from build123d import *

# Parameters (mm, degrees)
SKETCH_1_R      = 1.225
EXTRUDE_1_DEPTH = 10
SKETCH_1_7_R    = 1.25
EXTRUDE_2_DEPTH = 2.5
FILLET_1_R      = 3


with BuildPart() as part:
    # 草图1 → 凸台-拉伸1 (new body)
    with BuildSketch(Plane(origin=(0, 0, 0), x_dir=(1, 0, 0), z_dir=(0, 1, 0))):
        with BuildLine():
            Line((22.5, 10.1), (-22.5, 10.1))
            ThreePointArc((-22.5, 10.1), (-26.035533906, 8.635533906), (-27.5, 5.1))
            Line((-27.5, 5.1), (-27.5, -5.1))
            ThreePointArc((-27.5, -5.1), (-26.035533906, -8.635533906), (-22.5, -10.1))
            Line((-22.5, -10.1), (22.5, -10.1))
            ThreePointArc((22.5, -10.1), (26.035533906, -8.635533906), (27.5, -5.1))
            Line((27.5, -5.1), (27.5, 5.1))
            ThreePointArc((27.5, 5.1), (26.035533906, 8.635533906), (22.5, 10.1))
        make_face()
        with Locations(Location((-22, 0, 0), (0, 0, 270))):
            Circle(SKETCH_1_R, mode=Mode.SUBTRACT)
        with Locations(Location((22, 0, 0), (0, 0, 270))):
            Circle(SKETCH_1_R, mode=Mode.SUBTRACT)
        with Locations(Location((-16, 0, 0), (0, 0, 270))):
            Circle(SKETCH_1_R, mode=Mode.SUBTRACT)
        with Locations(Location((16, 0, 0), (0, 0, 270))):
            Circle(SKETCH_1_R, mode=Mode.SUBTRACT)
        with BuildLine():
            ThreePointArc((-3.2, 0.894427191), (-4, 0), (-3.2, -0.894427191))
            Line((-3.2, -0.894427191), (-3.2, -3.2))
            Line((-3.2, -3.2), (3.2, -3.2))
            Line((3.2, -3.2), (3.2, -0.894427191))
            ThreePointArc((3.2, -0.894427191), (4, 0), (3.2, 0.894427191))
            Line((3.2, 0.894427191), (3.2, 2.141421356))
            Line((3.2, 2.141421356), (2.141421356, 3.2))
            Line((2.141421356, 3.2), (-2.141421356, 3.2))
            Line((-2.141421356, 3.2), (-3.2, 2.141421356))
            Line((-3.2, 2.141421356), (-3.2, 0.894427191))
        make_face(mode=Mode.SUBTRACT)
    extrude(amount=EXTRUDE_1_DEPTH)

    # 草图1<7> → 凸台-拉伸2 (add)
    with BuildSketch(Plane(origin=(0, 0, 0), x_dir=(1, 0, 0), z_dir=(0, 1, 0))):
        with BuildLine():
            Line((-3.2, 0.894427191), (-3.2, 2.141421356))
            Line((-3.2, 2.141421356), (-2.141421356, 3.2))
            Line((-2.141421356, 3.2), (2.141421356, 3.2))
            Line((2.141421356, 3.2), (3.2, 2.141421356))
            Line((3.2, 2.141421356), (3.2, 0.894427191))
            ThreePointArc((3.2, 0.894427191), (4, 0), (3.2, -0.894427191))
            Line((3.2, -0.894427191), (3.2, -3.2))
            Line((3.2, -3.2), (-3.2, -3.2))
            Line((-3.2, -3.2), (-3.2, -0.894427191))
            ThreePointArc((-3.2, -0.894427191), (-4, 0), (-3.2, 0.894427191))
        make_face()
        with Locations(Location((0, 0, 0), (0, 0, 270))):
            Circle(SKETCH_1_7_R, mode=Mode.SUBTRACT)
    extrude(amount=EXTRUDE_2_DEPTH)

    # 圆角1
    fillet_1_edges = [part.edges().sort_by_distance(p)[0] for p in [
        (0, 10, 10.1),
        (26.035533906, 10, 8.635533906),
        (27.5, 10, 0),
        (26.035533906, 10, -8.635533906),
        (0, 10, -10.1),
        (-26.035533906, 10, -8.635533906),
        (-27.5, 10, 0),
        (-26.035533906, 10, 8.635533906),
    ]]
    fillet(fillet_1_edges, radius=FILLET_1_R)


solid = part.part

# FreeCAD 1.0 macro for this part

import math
import FreeCAD as App
import Part
import Sketcher
from FreeCAD import Vector
Q = App.Units.Quantity


def edges_at(feature, points):
    """Names of the edges that pass closest to the given points."""
    edges = feature.Shape.Edges
    near = lambda p: min(range(len(edges)), key=lambda i: edges[i].distToShape(Part.Vertex(*p))[0])
    return sorted({f"Edge{near(p) + 1}" for p in points})

doc = App.newDocument("Part")
body = doc.addObject("PartDesign::Body", "Body")

sketch1 = doc.addObject("Sketcher::SketchObject", "Sketch")
body.addObject(sketch1)
sketch1.AttachmentSupport = (doc.XZ_Plane, [""])
sketch1.MapMode = "FlatFace"
sketch1.addGeometry(Part.LineSegment(Vector(22.5, -10.1, 0), Vector(-22.5, -10.1, 0)), False)
sketch1.addGeometry(Part.ArcOfCircle(Part.Circle(Vector(-22.5, -5.1, 0), Vector(0, 0, 1), 5), math.radians(180), math.radians(270)), False)
sketch1.addGeometry(Part.LineSegment(Vector(-27.5, -5.1, 0), Vector(-27.5, 5.1, 0)), False)
sketch1.addGeometry(Part.ArcOfCircle(Part.Circle(Vector(-22.5, 5.1, 0), Vector(0, 0, 1), 5), math.radians(90), math.radians(180)), False)
sketch1.addGeometry(Part.LineSegment(Vector(-22.5, 10.1, 0), Vector(22.5, 10.1, 0)), False)
sketch1.addGeometry(Part.ArcOfCircle(Part.Circle(Vector(22.5, 5.1, 0), Vector(0, 0, 1), 5), math.radians(0), math.radians(90)), False)
sketch1.addGeometry(Part.LineSegment(Vector(27.5, 5.1, 0), Vector(27.5, -5.1, 0)), False)
sketch1.addGeometry(Part.ArcOfCircle(Part.Circle(Vector(22.5, -5.1, 0), Vector(0, 0, 1), 5), math.radians(-90), math.radians(0)), False)
sketch1.addGeometry(Part.Circle(Vector(-22, 0, 0), Vector(0, 0, 1), 1.225), False)
sketch1.addGeometry(Part.Circle(Vector(-16, 0, 0), Vector(0, 0, 1), 1.225), False)
sketch1.addGeometry(Part.ArcOfCircle(Part.Circle(Vector(-3.1, 0, 0), Vector(0, 0, 1), 0.9), math.radians(96.37937), math.radians(263.62063)), False)
sketch1.addGeometry(Part.LineSegment(Vector(-3.2, -0.894427, 0), Vector(-3.2, -2.141421, 0)), False)
sketch1.addGeometry(Part.LineSegment(Vector(-3.2, -2.141421, 0), Vector(-2.141421, -3.2, 0)), False)
sketch1.addGeometry(Part.LineSegment(Vector(-2.141421, -3.2, 0), Vector(2.141421, -3.2, 0)), False)
sketch1.addGeometry(Part.LineSegment(Vector(2.141421, -3.2, 0), Vector(3.2, -2.141421, 0)), False)
sketch1.addGeometry(Part.LineSegment(Vector(3.2, -2.141421, 0), Vector(3.2, -0.894427, 0)), False)
sketch1.addGeometry(Part.ArcOfCircle(Part.Circle(Vector(3.1, 0, 0), Vector(0, 0, 1), 0.9), math.radians(-83.62063), math.radians(83.62063)), False)
sketch1.addGeometry(Part.LineSegment(Vector(3.2, 0.894427, 0), Vector(3.2, 3.2, 0)), False)
sketch1.addGeometry(Part.LineSegment(Vector(3.2, 3.2, 0), Vector(-3.2, 3.2, 0)), False)
sketch1.addGeometry(Part.LineSegment(Vector(-3.2, 3.2, 0), Vector(-3.2, 0.894427, 0)), False)
sketch1.addGeometry(Part.Circle(Vector(16, 0, 0), Vector(0, 0, 1), 1.225), False)
sketch1.addGeometry(Part.Circle(Vector(22, 0, 0), Vector(0, 0, 1), 1.225), False)
sketch1.addConstraint(Sketcher.Constraint("Tangent", 0, 2, 1, 2))
sketch1.addConstraint(Sketcher.Constraint("Tangent", 1, 1, 2, 1))
sketch1.addConstraint(Sketcher.Constraint("Tangent", 2, 2, 3, 2))
sketch1.addConstraint(Sketcher.Constraint("Tangent", 3, 1, 4, 1))
sketch1.addConstraint(Sketcher.Constraint("Tangent", 4, 2, 5, 2))
sketch1.addConstraint(Sketcher.Constraint("Tangent", 5, 1, 6, 1))
sketch1.addConstraint(Sketcher.Constraint("Tangent", 6, 2, 7, 2))
sketch1.addConstraint(Sketcher.Constraint("Tangent", 7, 1, 0, 1))
sketch1.addConstraint(Sketcher.Constraint("Coincident", 10, 2, 11, 1))
sketch1.addConstraint(Sketcher.Constraint("Coincident", 11, 2, 12, 1))
sketch1.addConstraint(Sketcher.Constraint("Coincident", 12, 2, 13, 1))
sketch1.addConstraint(Sketcher.Constraint("Coincident", 13, 2, 14, 1))
sketch1.addConstraint(Sketcher.Constraint("Coincident", 14, 2, 15, 1))
sketch1.addConstraint(Sketcher.Constraint("Coincident", 15, 2, 16, 1))
sketch1.addConstraint(Sketcher.Constraint("Coincident", 16, 2, 17, 1))
sketch1.addConstraint(Sketcher.Constraint("Coincident", 17, 2, 18, 1))
sketch1.addConstraint(Sketcher.Constraint("Coincident", 18, 2, 19, 1))
sketch1.addConstraint(Sketcher.Constraint("Coincident", 19, 2, 10, 1))
sketch1.addConstraint(Sketcher.Constraint("Horizontal", 0))
sketch1.addConstraint(Sketcher.Constraint("Vertical", 2))
sketch1.addConstraint(Sketcher.Constraint("Horizontal", 4))
sketch1.addConstraint(Sketcher.Constraint("Vertical", 6))
sketch1.addConstraint(Sketcher.Constraint("Vertical", 11))
sketch1.addConstraint(Sketcher.Constraint("Horizontal", 13))
sketch1.addConstraint(Sketcher.Constraint("Vertical", 15))
sketch1.addConstraint(Sketcher.Constraint("Vertical", 17))
sketch1.addConstraint(Sketcher.Constraint("Horizontal", 18))
sketch1.addConstraint(Sketcher.Constraint("Vertical", 19))
sketch1.addConstraint(Sketcher.Constraint("Equal", 1, 3))
sketch1.addConstraint(Sketcher.Constraint("Equal", 3, 5))
sketch1.addConstraint(Sketcher.Constraint("Equal", 5, 7))
sketch1.addConstraint(Sketcher.Constraint("Equal", 8, 9))
sketch1.addConstraint(Sketcher.Constraint("Equal", 10, 16))
sketch1.addConstraint(Sketcher.Constraint("Equal", 9, 20))
sketch1.addConstraint(Sketcher.Constraint("Equal", 20, 21))
sketch1.addConstraint(Sketcher.Constraint("Symmetric", 1, 3, 5, 3, -1, 1))
sketch1.addConstraint(Sketcher.Constraint("Symmetric", 10, 3, 16, 3, -1, 1))
sketch1.addConstraint(Sketcher.Constraint("Symmetric", 9, 3, 20, 3, -1, 1))
sketch1.addConstraint(Sketcher.Constraint("Symmetric", 8, 3, 21, 3, -1, 1))
sketch1.addConstraint(Sketcher.Constraint("Symmetric", 11, 2, 14, 2, -2))
sketch1.addConstraint(Sketcher.Constraint("Symmetric", 16, 2, 19, 2, -2))
sketch1.addConstraint(Sketcher.Constraint("PointOnObject", 8, 3, -1))
sketch1.addConstraint(Sketcher.Constraint("PointOnObject", 9, 3, -1))
sketch1.addConstraint(Sketcher.Constraint("Perpendicular", 12, 14))
sketch1.addConstraint(Sketcher.Constraint("Vertical", 15, 2, 16, 2))
sketch1.addConstraint(Sketcher.Constraint("Equal", 12, 14))
sketch1.addConstraint(Sketcher.Constraint("Radius", 1, Q("5 mm")))
sketch1.addConstraint(Sketcher.Constraint("Radius", 10, Q("0.9 mm")))
sketch1.addConstraint(Sketcher.Constraint("Diameter", 8, Q("2.45 mm")))
sketch1.addConstraint(Sketcher.Constraint("DistanceX", 0, 2, 0, 1, Q("45 mm")))
sketch1.addConstraint(Sketcher.Constraint("DistanceX", 18, 2, 18, 1, Q("6.4 mm")))
sketch1.addConstraint(Sketcher.Constraint("DistanceY", 2, 1, 2, 2, Q("10.2 mm")))
sketch1.addConstraint(Sketcher.Constraint("DistanceX", 8, 3, -1, 1, Q("22 mm")))
sketch1.addConstraint(Sketcher.Constraint("DistanceX", 9, 3, -1, 1, Q("16 mm")))
sketch1.addConstraint(Sketcher.Constraint("DistanceX", 10, 3, -1, 1, Q("3.1 mm")))
sketch1.addConstraint(Sketcher.Constraint("DistanceY", 12, 2, -1, 1, Q("3.2 mm")))
sketch1.addConstraint(Sketcher.Constraint("DistanceY", -1, 1, 17, 2, Q("3.2 mm")))
sketch1.addConstraint(Sketcher.Constraint("DistanceX", 13, 1, 13, 2, Q("4.282843 mm")))
pad1 = doc.addObject("PartDesign::Pad", "Pad")
body.addObject(pad1)
pad1.Profile = sketch1
pad1.Length = 10
pad1.Reversed = True

sketch2 = doc.addObject("Sketcher::SketchObject", "Sketch001")
body.addObject(sketch2)
sketch2.AttachmentSupport = (doc.XZ_Plane, [""])
sketch2.MapMode = "FlatFace"
sketch2.addGeometry(Part.LineSegment(Vector(-3.2, -2.141421, 0), Vector(-3.2, -0.894427, 0)), False)
sketch2.addGeometry(Part.ArcOfCircle(Part.Circle(Vector(-3.1, 0, 0), Vector(0, 0, 1), 0.9), math.radians(96.37937), math.radians(263.62063)), False)
sketch2.addGeometry(Part.LineSegment(Vector(-3.2, 0.894427, 0), Vector(-3.2, 3.2, 0)), False)
sketch2.addGeometry(Part.LineSegment(Vector(-3.2, 3.2, 0), Vector(3.2, 3.2, 0)), False)
sketch2.addGeometry(Part.LineSegment(Vector(3.2, 3.2, 0), Vector(3.2, 0.894427, 0)), False)
sketch2.addGeometry(Part.ArcOfCircle(Part.Circle(Vector(3.1, 0, 0), Vector(0, 0, 1), 0.9), math.radians(-83.62063), math.radians(83.62063)), False)
sketch2.addGeometry(Part.LineSegment(Vector(3.2, -0.894427, 0), Vector(3.2, -2.141421, 0)), False)
sketch2.addGeometry(Part.LineSegment(Vector(3.2, -2.141421, 0), Vector(2.141421, -3.2, 0)), False)
sketch2.addGeometry(Part.LineSegment(Vector(2.141421, -3.2, 0), Vector(-2.141421, -3.2, 0)), False)
sketch2.addGeometry(Part.LineSegment(Vector(-2.141421, -3.2, 0), Vector(-3.2, -2.141421, 0)), False)
sketch2.addGeometry(Part.Circle(Vector(0, 0, 0), Vector(0, 0, 1), 1.25), False)
sketch2.addConstraint(Sketcher.Constraint("Coincident", 0, 2, 1, 2))
sketch2.addConstraint(Sketcher.Constraint("Coincident", 1, 1, 2, 1))
sketch2.addConstraint(Sketcher.Constraint("Coincident", 2, 2, 3, 1))
sketch2.addConstraint(Sketcher.Constraint("Coincident", 3, 2, 4, 1))
sketch2.addConstraint(Sketcher.Constraint("Coincident", 4, 2, 5, 2))
sketch2.addConstraint(Sketcher.Constraint("Coincident", 5, 1, 6, 1))
sketch2.addConstraint(Sketcher.Constraint("Coincident", 6, 2, 7, 1))
sketch2.addConstraint(Sketcher.Constraint("Coincident", 7, 2, 8, 1))
sketch2.addConstraint(Sketcher.Constraint("Coincident", 8, 2, 9, 1))
sketch2.addConstraint(Sketcher.Constraint("Coincident", 9, 2, 0, 1))
sketch2.addConstraint(Sketcher.Constraint("Vertical", 0))
sketch2.addConstraint(Sketcher.Constraint("Vertical", 2))
sketch2.addConstraint(Sketcher.Constraint("Horizontal", 3))
sketch2.addConstraint(Sketcher.Constraint("Vertical", 4))
sketch2.addConstraint(Sketcher.Constraint("Vertical", 6))
sketch2.addConstraint(Sketcher.Constraint("Horizontal", 8))
sketch2.addConstraint(Sketcher.Constraint("Coincident", 10, 3, -1, 1))
sketch2.addConstraint(Sketcher.Constraint("Equal", 1, 5))
sketch2.addConstraint(Sketcher.Constraint("Symmetric", 1, 3, 5, 3, -1, 1))
sketch2.addConstraint(Sketcher.Constraint("Symmetric", 1, 1, 4, 2, -2))
sketch2.addConstraint(Sketcher.Constraint("Symmetric", 6, 2, 9, 2, -2))
sketch2.addConstraint(Sketcher.Constraint("Perpendicular", 7, 9))
sketch2.addConstraint(Sketcher.Constraint("Vertical", 0, 2, 1, 1))
sketch2.addConstraint(Sketcher.Constraint("Equal", 7, 9))
sketch2.addConstraint(Sketcher.Constraint("Diameter", 10, Q("2.5 mm")))
sketch2.addConstraint(Sketcher.Constraint("Radius", 1, Q("0.9 mm")))
sketch2.addConstraint(Sketcher.Constraint("DistanceX", 3, 1, 3, 2, Q("6.4 mm")))
sketch2.addConstraint(Sketcher.Constraint("DistanceX", 1, 3, -1, 1, Q("3.1 mm")))
sketch2.addConstraint(Sketcher.Constraint("DistanceY", -1, 1, 2, 2, Q("3.2 mm")))
sketch2.addConstraint(Sketcher.Constraint("DistanceY", 7, 2, -1, 1, Q("3.2 mm")))
sketch2.addConstraint(Sketcher.Constraint("DistanceX", 8, 2, 8, 1, Q("4.282843 mm")))
pad2 = doc.addObject("PartDesign::Pad", "Pad001")
body.addObject(pad2)
pad2.Profile = sketch2
pad2.Length = 2.5
pad2.Reversed = True
doc.recompute()

fillet = doc.addObject("PartDesign::Fillet", "Fillet")
body.addObject(fillet)
fillet.Base = (pad2, edges_at(pad2, [
    (0, 10, 10.1),
    (26.036, 10, 8.636),
    (27.5, 10, 0),
    (26.036, 10, -8.636),
    (0, 10, -10.1),
    (-26.036, 10, -8.636),
    (-27.5, 10, 0),
    (-26.036, 10, 8.636),
]))
fillet.Radius = 3

doc.recompute()
